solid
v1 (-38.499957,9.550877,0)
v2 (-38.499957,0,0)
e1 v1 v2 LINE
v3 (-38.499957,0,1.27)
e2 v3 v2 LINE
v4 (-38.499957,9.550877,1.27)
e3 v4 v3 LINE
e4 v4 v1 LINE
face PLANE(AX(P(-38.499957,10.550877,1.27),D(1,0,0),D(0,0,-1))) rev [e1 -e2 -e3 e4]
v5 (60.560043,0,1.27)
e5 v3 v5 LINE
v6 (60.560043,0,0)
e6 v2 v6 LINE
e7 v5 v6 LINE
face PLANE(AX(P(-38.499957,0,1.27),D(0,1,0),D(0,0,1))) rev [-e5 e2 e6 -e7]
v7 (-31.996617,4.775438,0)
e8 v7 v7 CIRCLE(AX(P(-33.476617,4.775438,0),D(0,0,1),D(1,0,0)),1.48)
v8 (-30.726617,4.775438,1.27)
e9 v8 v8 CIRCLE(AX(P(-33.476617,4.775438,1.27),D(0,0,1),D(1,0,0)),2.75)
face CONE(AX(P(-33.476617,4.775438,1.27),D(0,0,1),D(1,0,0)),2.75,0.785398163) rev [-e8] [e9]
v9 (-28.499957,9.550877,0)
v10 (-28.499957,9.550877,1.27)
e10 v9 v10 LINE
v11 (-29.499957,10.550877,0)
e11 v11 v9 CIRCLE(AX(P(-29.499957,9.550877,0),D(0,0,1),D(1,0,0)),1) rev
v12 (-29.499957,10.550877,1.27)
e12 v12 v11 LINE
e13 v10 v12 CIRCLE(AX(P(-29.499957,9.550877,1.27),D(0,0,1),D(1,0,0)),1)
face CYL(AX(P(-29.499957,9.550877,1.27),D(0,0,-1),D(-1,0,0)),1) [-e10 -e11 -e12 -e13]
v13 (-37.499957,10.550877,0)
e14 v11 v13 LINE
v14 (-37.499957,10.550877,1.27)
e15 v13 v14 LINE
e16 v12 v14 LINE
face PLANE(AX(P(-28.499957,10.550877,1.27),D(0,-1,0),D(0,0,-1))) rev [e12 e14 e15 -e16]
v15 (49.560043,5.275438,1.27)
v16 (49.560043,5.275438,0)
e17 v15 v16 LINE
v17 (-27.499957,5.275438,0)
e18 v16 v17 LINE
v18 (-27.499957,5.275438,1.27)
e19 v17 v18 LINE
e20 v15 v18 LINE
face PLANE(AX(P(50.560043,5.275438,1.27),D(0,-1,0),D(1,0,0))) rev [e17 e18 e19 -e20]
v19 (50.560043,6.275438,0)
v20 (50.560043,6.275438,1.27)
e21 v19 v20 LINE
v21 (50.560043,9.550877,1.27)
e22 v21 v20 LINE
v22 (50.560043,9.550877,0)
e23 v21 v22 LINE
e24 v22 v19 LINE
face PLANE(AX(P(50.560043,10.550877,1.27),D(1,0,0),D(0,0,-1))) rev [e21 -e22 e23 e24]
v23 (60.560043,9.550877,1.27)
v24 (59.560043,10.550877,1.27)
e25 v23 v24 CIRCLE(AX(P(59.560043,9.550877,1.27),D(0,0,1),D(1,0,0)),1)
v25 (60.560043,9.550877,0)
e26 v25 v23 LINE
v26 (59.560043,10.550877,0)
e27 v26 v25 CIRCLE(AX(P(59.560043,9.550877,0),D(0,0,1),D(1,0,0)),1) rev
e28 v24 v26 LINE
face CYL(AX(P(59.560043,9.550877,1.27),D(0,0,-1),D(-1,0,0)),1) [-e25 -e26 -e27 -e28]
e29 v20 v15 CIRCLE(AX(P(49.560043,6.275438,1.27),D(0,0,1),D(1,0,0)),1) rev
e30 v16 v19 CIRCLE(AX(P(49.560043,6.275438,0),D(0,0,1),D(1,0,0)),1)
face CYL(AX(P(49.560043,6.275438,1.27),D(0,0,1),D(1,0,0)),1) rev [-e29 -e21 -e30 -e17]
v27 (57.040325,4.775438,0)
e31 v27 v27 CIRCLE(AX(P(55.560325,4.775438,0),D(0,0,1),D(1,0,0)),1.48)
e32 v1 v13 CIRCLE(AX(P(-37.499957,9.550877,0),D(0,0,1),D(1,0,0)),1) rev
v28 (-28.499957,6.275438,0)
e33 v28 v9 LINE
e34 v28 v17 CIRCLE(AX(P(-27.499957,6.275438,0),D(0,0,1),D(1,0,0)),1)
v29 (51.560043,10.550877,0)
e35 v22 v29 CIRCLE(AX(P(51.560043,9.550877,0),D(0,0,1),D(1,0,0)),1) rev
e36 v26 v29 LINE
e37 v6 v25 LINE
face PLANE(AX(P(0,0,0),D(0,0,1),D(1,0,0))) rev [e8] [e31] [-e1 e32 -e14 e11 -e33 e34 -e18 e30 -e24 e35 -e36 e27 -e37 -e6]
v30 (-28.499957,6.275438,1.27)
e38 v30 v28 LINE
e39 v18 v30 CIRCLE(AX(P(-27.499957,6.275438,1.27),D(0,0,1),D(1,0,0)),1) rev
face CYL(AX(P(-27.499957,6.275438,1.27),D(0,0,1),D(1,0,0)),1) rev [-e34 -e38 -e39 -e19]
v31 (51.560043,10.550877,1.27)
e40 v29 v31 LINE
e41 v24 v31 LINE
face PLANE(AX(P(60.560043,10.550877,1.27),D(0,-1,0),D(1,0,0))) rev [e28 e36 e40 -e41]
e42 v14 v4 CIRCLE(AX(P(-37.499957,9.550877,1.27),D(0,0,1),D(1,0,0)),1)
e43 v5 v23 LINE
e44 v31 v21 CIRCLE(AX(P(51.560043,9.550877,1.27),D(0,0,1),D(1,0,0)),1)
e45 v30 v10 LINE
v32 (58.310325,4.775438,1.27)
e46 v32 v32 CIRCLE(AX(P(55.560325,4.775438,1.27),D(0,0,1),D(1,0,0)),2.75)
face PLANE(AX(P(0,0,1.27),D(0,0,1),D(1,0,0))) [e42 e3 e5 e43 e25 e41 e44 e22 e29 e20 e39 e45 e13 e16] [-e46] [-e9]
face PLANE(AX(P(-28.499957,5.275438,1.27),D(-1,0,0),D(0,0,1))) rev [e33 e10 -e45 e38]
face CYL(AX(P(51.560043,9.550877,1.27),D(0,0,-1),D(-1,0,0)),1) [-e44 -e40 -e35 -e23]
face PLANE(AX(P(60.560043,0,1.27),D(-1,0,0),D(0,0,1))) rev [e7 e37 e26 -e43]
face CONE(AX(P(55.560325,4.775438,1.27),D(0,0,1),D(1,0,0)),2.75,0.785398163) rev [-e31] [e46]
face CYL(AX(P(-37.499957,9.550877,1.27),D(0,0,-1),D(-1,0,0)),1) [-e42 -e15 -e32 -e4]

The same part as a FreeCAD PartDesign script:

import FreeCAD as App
import Part
import Sketcher
from FreeCAD import Vector
Q = App.Units.Quantity


def edges_at(feature, points):
    """Names of the edges that pass closest to the given points."""
    edges = feature.Shape.Edges
    near = lambda p: min(range(len(edges)), key=lambda i: edges[i].distToShape(Part.Vertex(*p))[0])
    return sorted({f"Edge{near(p) + 1}" for p in points})


def add_polygon(sketch, points):
    """Adds a closed chain of lines whose ends are joined by coincident constraints."""
    first, n = sketch.GeometryCount, len(points)
    for a, b in zip(points, points[1:] + points[:1]):
        sketch.addGeometry(Part.LineSegment(App.Vector(*a, 0), App.Vector(*b, 0)), False)
    for i in range(n):
        sketch.addConstraint(Sketcher.Constraint("Coincident", first + i, 2, first + (i + 1) % n, 1))

doc = App.newDocument("Part")
body = doc.addObject("PartDesign::Body", "Body")

sketch1 = body.newObject("Sketcher::SketchObject", "Sketch")
sketch1.AttachmentSupport = (doc.getObject("XY_Plane"), [""])
sketch1.MapMode = "FlatFace"
add_polygon(sketch1, [(-38, 0), (61, 0), (61, 11), (51, 11), (51, 5), (-28, 5), (-28, 11), (-38, 11)])
sketch1.addConstraint([
    Sketcher.Constraint("Horizontal", 0),
    Sketcher.Constraint("Vertical", 1),
    Sketcher.Constraint("Horizontal", 2),
    Sketcher.Constraint("Vertical", 3),
    Sketcher.Constraint("Horizontal", 4),
    Sketcher.Constraint("Vertical", 5),
    Sketcher.Constraint("Horizontal", 6),
    Sketcher.Constraint("Vertical", 7),
    Sketcher.Constraint("PointOnObject", 0, 2, -1),
    Sketcher.Constraint("Horizontal", 2, 2, 5, 2),
    Sketcher.Constraint("Equal", 2, 6),
    Sketcher.Constraint("DistanceX", 2, 2, 2, 1, Q("10 mm")),
    Sketcher.Constraint("DistanceX", 0, 1, 0, 2, Q("99.06 mm")),
    Sketcher.Constraint("DistanceY", 3, 2, 3, 1, Q("5.275438 mm")),
    Sketcher.Constraint("DistanceY", 1, 1, 1, 2, Q("10.550877 mm")),
    Sketcher.Constraint("DistanceX", -1, 1, 0, 2, Q("60.560043 mm")),
])
pad1 = body.newObject("PartDesign::Pad", "Pad")
pad1.Profile = sketch1
pad1.Length = 1.27
doc.recompute()

fillet = body.newObject("PartDesign::Fillet", "Fillet")
fillet.Base = (pad1, edges_at(pad1, [
    (-38.5, 10.551, 0.635),
    (-28.5, 10.551, 0.635),
    (-28.5, 5.275, 0.635),
    (50.56, 5.275, 0.635),
    (50.56, 10.551, 0.635),
    (60.56, 10.551, 0.635),
]))
fillet.Radius = 1

sketch2 = body.newObject("Sketcher::SketchObject", "Sketch001")
sketch2.AttachmentSupport = (doc.getObject("YZ_Plane"), [""])
sketch2.MapMode = "FlatFace"
sketch2.AttachmentOffset = App.Placement(Vector(0, 0, -33.476617), App.Rotation())
add_polygon(sketch2, [(4.775, 0), (4.775, 1.27), (2.025, 1.27), (3.325, -0.03), (3.325, 0)])
sketch2.addGeometry(Part.LineSegment(Vector(4.775, 1.27, 0), Vector(4.775, -0.03, 0)), True)
sketch2.addConstraint([
    Sketcher.Constraint("Vertical", 0),
    Sketcher.Constraint("Horizontal", 1),
    Sketcher.Constraint("Vertical", 3),
    Sketcher.Constraint("Horizontal", 4),
    Sketcher.Constraint("Vertical", 5),
    Sketcher.Constraint("Coincident", 5, 1, 0, 2),
    Sketcher.Constraint("PointOnObject", 3, 2, -1),
    Sketcher.Constraint("Horizontal", 2, 2, 5, 2),
    Sketcher.Constraint("Angle", 2, Q("-45 deg")),
    Sketcher.Constraint("DistanceY", 5, 2, 5, 1, Q("1.3 mm")),
    Sketcher.Constraint("DistanceX", 1, 2, 1, 1, Q("2.75 mm")),
    Sketcher.Constraint("DistanceY", 0, 1, 0, 2, Q("1.27 mm")),
    Sketcher.Constraint("DistanceX", -1, 1, 0, 2, Q("4.775438 mm")),
])
groove = body.newObject("PartDesign::Groove", "Groove")
groove.Profile = sketch2
groove.ReferenceAxis = (sketch2, ["Axis0"])
groove.Angle = 360
doc.recompute()

linearpattern = body.newObject("PartDesign::LinearPattern", "LinearPattern")
linearpattern.Originals = [groove]
linearpattern.Direction = (doc.getObject("X_Axis"), [""])
linearpattern.Mode = "offset"
linearpattern.Offset = 89.036943
linearpattern.Occurrences = 2
body.Tip = linearpattern

doc.recompute()
